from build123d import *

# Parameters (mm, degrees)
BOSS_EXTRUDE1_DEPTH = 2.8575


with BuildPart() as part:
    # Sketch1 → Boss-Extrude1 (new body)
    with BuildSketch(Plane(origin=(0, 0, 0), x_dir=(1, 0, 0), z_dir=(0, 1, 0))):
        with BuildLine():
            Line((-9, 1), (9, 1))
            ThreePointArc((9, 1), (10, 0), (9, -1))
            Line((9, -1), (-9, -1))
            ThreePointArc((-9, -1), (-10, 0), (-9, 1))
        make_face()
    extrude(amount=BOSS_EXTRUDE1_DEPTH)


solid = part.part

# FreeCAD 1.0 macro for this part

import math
import FreeCAD as App
import Part
import Sketcher

V = App.Vector

doc = App.newDocument("Part")
body = doc.addObject("PartDesign::Body", "Body")

# Sketch on XZ plane
sketch1 = body.newObject("Sketcher::SketchObject", "Sketch")
sketch1.AttachmentSupport = (doc.getObject("XZ_Plane"), [""])
sketch1.MapMode = "FlatFace"
sketch1.addGeometry([
    Part.LineSegment(V(9, -1, 0), V(-9, -1, 0)),
    Part.ArcOfCircle(Part.Circle(V(-9, 0, 0), V(0, 0, 1), 1), math.radians(90), math.radians(270)),
    Part.LineSegment(V(-9, 1, 0), V(9, 1, 0)),
    Part.ArcOfCircle(Part.Circle(V(9, 0, 0), V(0, 0, 1), 1), math.radians(-90), math.radians(90)),
], False)
sketch1.addConstraint([
    Sketcher.Constraint("Tangent", 0, 2, 1, 2),
    Sketcher.Constraint("Tangent", 1, 1, 2, 1),
    Sketcher.Constraint("Tangent", 2, 2, 3, 2),
    Sketcher.Constraint("Tangent", 3, 1, 0, 1),
    Sketcher.Constraint("Horizontal", 0),
    Sketcher.Constraint("Horizontal", 2),
    Sketcher.Constraint("Symmetric", 1, 3, 3, 3, -1, 1),
    Sketcher.Constraint("Radius", 1, 1.0),
    Sketcher.Constraint("DistanceX", 0, 2, 0, 1, 18.0),
])
pad1 = body.newObject("PartDesign::Pad", "Pad")
pad1.Profile = sketch1
pad1.Length = 2.8575
pad1.Reversed = True

doc.recompute()
